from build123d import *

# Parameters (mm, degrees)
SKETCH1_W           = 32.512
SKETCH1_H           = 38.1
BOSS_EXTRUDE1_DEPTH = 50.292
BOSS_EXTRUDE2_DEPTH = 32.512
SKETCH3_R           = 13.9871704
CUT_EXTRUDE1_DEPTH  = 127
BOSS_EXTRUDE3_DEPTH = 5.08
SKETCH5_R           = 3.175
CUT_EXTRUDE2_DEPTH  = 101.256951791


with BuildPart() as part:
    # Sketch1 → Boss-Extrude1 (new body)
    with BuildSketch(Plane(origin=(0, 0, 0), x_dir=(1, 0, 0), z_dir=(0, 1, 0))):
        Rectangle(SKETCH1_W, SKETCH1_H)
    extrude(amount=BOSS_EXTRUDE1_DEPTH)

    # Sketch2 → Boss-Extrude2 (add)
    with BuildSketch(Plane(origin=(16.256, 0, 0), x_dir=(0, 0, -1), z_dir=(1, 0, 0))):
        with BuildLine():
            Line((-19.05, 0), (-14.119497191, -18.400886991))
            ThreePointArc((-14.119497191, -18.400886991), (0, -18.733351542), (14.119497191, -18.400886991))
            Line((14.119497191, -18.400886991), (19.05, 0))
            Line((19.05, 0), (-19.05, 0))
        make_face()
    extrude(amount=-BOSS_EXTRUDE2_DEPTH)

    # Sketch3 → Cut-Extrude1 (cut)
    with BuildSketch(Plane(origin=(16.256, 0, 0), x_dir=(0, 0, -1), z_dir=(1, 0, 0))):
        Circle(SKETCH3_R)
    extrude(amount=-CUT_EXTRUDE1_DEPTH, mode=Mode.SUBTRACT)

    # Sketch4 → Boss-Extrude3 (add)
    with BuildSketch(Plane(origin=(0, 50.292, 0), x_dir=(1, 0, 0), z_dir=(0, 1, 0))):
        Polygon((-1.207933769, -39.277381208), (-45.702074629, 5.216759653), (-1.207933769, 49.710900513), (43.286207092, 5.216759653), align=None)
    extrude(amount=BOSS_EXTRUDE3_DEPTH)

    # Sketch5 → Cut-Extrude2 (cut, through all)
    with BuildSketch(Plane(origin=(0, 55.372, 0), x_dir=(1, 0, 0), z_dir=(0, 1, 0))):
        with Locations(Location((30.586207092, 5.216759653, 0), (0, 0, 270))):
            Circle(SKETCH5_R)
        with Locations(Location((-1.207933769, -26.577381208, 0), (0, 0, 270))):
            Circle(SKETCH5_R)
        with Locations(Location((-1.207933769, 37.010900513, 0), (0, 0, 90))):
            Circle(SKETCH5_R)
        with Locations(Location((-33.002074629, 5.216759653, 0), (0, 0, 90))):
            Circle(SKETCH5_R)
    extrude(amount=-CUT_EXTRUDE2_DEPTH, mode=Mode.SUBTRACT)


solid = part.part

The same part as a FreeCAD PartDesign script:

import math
import FreeCAD as App
import Part
import Sketcher
from FreeCAD import Vector
Q = App.Units.Quantity


def add_polygon(sketch, points):
    """Adds a closed chain of lines whose ends are joined by coincident constraints."""
    first, n = sketch.GeometryCount, len(points)
    for a, b in zip(points, points[1:] + points[:1]):
        sketch.addGeometry(Part.LineSegment(App.Vector(*a, 0), App.Vector(*b, 0)), False)
    for i in range(n):
        sketch.addConstraint(Sketcher.Constraint("Coincident", first + i, 2, first + (i + 1) % n, 1))

doc = App.newDocument("Part")
body = doc.addObject("PartDesign::Body", "Body")

# Sketch on XZ plane
sketch1 = body.newObject("Sketcher::SketchObject", "Sketch")
sketch1.AttachmentSupport = (doc.getObject("XZ_Plane"), [""])
sketch1.MapMode = "FlatFace"
add_polygon(sketch1, [(-16, -19), (-16, 19), (16, 19), (16, -19)])  # lines 0-3
sketch1.addConstraint(Sketcher.Constraint("Vertical", 0))
sketch1.addConstraint(Sketcher.Constraint("Horizontal", 1))
sketch1.addConstraint(Sketcher.Constraint("Vertical", 2))
sketch1.addConstraint(Sketcher.Constraint("Horizontal", 3))
sketch1.addConstraint(Sketcher.Constraint("Symmetric", 0, 2, 2, 2, -1, 1))
sketch1.addConstraint(Sketcher.Constraint("DistanceY", 0, 1, 0, 2, Q("1.5 in")))
sketch1.addConstraint(Sketcher.Constraint("DistanceX", 1, 1, 1, 2, Q("1.28 in")))
pad1 = body.newObject("PartDesign::Pad", "Pad")
pad1.Profile = sketch1
pad1.Length = Q("1.98 in")
pad1.Reversed = True

# Sketch on YZ plane
sketch2 = body.newObject("Sketcher::SketchObject", "Sketch001")
sketch2.AttachmentSupport = (doc.getObject("YZ_Plane"), [""])
sketch2.MapMode = "FlatFace"
sketch2.AttachmentOffset = App.Placement(Vector(0, 0, 0.64 * 25.4), App.Rotation())
sketch2.addGeometry(Part.LineSegment(Vector(0, 19, 0), Vector(-18, 14, 0)), False)
sketch2.addGeometry(Part.ArcOfCircle(Part.Circle(Vector(281, 0, 0), Vector(0, 0, 1), 300), math.radians(177.3), math.radians(182.7)), False)
sketch2.addGeometry(Part.LineSegment(Vector(-18, -14, 0), Vector(0, -19, 0)), False)
sketch2.addGeometry(Part.LineSegment(Vector(0, -19, 0), Vector(0, 19, 0)), False)
sketch2.addConstraint(Sketcher.Constraint("Coincident", 0, 2, 1, 1))
sketch2.addConstraint(Sketcher.Constraint("Coincident", 1, 2, 2, 1))
sketch2.addConstraint(Sketcher.Constraint("Coincident", 2, 2, 3, 1))
sketch2.addConstraint(Sketcher.Constraint("Coincident", 3, 2, 0, 1))
sketch2.addConstraint(Sketcher.Constraint("Vertical", 3))
sketch2.addConstraint(Sketcher.Constraint("Symmetric", 2, 2, 3, 2, -1, 1))
sketch2.addConstraint(Sketcher.Constraint("Symmetric", 0, 2, 1, 2, -1))
sketch2.addConstraint(Sketcher.Constraint("DistanceY", 3, 1, 3, 2, Q("1.5 in")))
sketch2.addConstraint(Sketcher.Constraint("Angle", 0, Q("-165 deg")))
sketch2.addConstraint(Sketcher.Constraint("Distance", 0, Q("0.75 in")))
sketch2.addConstraint(Sketcher.Constraint("Radius", 1, Q("299.987973 mm")))
pad2 = body.newObject("PartDesign::Pad", "Pad001")
pad2.Profile = sketch2
pad2.Length = Q("1.28 in")
pad2.Reversed = True

# Sketch on YZ plane
sketch3 = body.newObject("Sketcher::SketchObject", "Sketch002")
sketch3.AttachmentSupport = (doc.getObject("YZ_Plane"), [""])
sketch3.MapMode = "FlatFace"
sketch3.AttachmentOffset = App.Placement(Vector(0, 0, 0.64 * 25.4), App.Rotation())
sketch3.addGeometry(Part.Circle(Vector(0, 0, 0), Vector(0, 0, 1), 14), False)
sketch3.addConstraint(Sketcher.Constraint("Coincident", 0, 3, -1, 1))
sketch3.addConstraint(Sketcher.Constraint("Diameter", 0, Q("27.974341 mm")))
pocket1 = body.newObject("PartDesign::Pocket", "Pocket")
pocket1.Profile = sketch3
pocket1.Length = Q("5 in")

# Sketch on XZ plane
sketch4 = body.newObject("Sketcher::SketchObject", "Sketch003")
sketch4.AttachmentSupport = (doc.getObject("XZ_Plane"), [""])
sketch4.MapMode = "FlatFace"
sketch4.AttachmentOffset = App.Placement(Vector(0, 0, -1.98 * 25.4), App.Rotation())
add_polygon(sketch4, [(-46, -5), (-1, 39), (43, -5), (-1, -50)])  # lines 0-3
sketch4.addConstraint(Sketcher.Constraint("Perpendicular", 0, 1))
sketch4.addConstraint(Sketcher.Constraint("Perpendicular", 1, 2))
sketch4.addConstraint(Sketcher.Constraint("Perpendicular", 2, 3))
sketch4.addConstraint(Sketcher.Constraint("Horizontal", 1, 2, 3, 2))
sketch4.addConstraint(Sketcher.Constraint("Vertical", 0, 2, 2, 2))
sketch4.addConstraint(Sketcher.Constraint("DistanceY", 2, 2, -1, 1, Q("49.710901 mm")))
sketch4.addConstraint(Sketcher.Constraint("DistanceY", -1, 1, 0, 2, Q("39.277381 mm")))
sketch4.addConstraint(Sketcher.Constraint("DistanceX", 0, 2, -1, 1, Q("1.207934 mm")))
pad3 = body.newObject("PartDesign::Pad", "Pad002")
pad3.Profile = sketch4
pad3.Length = Q("0.2 in")
pad3.Reversed = True

# Sketch on XZ plane
sketch5 = body.newObject("Sketcher::SketchObject", "Sketch004")
sketch5.AttachmentSupport = (doc.getObject("XZ_Plane"), [""])
sketch5.MapMode = "FlatFace"
sketch5.AttachmentOffset = App.Placement(Vector(0, 0, -2.18 * 25.4), App.Rotation())
sketch5.addGeometry(Part.Circle(Vector(30.6, -5.2, 0), Vector(0, 0, 1), 3.2), False)
sketch5.addGeometry(Part.Circle(Vector(-1.2, 26.6, 0), Vector(0, 0, 1), 3.2), False)
sketch5.addGeometry(Part.Circle(Vector(-1.2, -37, 0), Vector(0, 0, 1), 3.2), False)
sketch5.addGeometry(Part.Circle(Vector(-33, -5.2, 0), Vector(0, 0, 1), 3.2), False)
sketch5.addConstraint(Sketcher.Constraint("Equal", 0, 1))
sketch5.addConstraint(Sketcher.Constraint("Equal", 1, 2))
sketch5.addConstraint(Sketcher.Constraint("Equal", 2, 3))
sketch5.addConstraint(Sketcher.Constraint("Horizontal", 0, 3, 3, 3))
sketch5.addConstraint(Sketcher.Constraint("Vertical", 1, 3, 2, 3))
sketch5.addConstraint(Sketcher.Constraint("Diameter", 0, Q("0.25 in")))
sketch5.addConstraint(Sketcher.Constraint("DistanceY", 2, 3, -1, 1, Q("37.010901 mm")))
sketch5.addConstraint(Sketcher.Constraint("DistanceY", 0, 3, -1, 1, Q("5.21676 mm")))
sketch5.addConstraint(Sketcher.Constraint("DistanceY", -1, 1, 1, 3, Q("26.577381 mm")))
sketch5.addConstraint(Sketcher.Constraint("DistanceX", 1, 3, 0, 3, Q("31.794141 mm")))
sketch5.addConstraint(Sketcher.Constraint("DistanceX", 3, 3, 2, 3, Q("31.794141 mm")))
sketch5.addConstraint(Sketcher.Constraint("DistanceX", -1, 1, 0, 3, Q("30.586207 mm")))
pocket2 = body.newObject("PartDesign::Pocket", "Pocket001")
pocket2.Profile = sketch5
pocket2.Type = "ThroughAll"
pocket2.Reversed = True

doc.recompute()
